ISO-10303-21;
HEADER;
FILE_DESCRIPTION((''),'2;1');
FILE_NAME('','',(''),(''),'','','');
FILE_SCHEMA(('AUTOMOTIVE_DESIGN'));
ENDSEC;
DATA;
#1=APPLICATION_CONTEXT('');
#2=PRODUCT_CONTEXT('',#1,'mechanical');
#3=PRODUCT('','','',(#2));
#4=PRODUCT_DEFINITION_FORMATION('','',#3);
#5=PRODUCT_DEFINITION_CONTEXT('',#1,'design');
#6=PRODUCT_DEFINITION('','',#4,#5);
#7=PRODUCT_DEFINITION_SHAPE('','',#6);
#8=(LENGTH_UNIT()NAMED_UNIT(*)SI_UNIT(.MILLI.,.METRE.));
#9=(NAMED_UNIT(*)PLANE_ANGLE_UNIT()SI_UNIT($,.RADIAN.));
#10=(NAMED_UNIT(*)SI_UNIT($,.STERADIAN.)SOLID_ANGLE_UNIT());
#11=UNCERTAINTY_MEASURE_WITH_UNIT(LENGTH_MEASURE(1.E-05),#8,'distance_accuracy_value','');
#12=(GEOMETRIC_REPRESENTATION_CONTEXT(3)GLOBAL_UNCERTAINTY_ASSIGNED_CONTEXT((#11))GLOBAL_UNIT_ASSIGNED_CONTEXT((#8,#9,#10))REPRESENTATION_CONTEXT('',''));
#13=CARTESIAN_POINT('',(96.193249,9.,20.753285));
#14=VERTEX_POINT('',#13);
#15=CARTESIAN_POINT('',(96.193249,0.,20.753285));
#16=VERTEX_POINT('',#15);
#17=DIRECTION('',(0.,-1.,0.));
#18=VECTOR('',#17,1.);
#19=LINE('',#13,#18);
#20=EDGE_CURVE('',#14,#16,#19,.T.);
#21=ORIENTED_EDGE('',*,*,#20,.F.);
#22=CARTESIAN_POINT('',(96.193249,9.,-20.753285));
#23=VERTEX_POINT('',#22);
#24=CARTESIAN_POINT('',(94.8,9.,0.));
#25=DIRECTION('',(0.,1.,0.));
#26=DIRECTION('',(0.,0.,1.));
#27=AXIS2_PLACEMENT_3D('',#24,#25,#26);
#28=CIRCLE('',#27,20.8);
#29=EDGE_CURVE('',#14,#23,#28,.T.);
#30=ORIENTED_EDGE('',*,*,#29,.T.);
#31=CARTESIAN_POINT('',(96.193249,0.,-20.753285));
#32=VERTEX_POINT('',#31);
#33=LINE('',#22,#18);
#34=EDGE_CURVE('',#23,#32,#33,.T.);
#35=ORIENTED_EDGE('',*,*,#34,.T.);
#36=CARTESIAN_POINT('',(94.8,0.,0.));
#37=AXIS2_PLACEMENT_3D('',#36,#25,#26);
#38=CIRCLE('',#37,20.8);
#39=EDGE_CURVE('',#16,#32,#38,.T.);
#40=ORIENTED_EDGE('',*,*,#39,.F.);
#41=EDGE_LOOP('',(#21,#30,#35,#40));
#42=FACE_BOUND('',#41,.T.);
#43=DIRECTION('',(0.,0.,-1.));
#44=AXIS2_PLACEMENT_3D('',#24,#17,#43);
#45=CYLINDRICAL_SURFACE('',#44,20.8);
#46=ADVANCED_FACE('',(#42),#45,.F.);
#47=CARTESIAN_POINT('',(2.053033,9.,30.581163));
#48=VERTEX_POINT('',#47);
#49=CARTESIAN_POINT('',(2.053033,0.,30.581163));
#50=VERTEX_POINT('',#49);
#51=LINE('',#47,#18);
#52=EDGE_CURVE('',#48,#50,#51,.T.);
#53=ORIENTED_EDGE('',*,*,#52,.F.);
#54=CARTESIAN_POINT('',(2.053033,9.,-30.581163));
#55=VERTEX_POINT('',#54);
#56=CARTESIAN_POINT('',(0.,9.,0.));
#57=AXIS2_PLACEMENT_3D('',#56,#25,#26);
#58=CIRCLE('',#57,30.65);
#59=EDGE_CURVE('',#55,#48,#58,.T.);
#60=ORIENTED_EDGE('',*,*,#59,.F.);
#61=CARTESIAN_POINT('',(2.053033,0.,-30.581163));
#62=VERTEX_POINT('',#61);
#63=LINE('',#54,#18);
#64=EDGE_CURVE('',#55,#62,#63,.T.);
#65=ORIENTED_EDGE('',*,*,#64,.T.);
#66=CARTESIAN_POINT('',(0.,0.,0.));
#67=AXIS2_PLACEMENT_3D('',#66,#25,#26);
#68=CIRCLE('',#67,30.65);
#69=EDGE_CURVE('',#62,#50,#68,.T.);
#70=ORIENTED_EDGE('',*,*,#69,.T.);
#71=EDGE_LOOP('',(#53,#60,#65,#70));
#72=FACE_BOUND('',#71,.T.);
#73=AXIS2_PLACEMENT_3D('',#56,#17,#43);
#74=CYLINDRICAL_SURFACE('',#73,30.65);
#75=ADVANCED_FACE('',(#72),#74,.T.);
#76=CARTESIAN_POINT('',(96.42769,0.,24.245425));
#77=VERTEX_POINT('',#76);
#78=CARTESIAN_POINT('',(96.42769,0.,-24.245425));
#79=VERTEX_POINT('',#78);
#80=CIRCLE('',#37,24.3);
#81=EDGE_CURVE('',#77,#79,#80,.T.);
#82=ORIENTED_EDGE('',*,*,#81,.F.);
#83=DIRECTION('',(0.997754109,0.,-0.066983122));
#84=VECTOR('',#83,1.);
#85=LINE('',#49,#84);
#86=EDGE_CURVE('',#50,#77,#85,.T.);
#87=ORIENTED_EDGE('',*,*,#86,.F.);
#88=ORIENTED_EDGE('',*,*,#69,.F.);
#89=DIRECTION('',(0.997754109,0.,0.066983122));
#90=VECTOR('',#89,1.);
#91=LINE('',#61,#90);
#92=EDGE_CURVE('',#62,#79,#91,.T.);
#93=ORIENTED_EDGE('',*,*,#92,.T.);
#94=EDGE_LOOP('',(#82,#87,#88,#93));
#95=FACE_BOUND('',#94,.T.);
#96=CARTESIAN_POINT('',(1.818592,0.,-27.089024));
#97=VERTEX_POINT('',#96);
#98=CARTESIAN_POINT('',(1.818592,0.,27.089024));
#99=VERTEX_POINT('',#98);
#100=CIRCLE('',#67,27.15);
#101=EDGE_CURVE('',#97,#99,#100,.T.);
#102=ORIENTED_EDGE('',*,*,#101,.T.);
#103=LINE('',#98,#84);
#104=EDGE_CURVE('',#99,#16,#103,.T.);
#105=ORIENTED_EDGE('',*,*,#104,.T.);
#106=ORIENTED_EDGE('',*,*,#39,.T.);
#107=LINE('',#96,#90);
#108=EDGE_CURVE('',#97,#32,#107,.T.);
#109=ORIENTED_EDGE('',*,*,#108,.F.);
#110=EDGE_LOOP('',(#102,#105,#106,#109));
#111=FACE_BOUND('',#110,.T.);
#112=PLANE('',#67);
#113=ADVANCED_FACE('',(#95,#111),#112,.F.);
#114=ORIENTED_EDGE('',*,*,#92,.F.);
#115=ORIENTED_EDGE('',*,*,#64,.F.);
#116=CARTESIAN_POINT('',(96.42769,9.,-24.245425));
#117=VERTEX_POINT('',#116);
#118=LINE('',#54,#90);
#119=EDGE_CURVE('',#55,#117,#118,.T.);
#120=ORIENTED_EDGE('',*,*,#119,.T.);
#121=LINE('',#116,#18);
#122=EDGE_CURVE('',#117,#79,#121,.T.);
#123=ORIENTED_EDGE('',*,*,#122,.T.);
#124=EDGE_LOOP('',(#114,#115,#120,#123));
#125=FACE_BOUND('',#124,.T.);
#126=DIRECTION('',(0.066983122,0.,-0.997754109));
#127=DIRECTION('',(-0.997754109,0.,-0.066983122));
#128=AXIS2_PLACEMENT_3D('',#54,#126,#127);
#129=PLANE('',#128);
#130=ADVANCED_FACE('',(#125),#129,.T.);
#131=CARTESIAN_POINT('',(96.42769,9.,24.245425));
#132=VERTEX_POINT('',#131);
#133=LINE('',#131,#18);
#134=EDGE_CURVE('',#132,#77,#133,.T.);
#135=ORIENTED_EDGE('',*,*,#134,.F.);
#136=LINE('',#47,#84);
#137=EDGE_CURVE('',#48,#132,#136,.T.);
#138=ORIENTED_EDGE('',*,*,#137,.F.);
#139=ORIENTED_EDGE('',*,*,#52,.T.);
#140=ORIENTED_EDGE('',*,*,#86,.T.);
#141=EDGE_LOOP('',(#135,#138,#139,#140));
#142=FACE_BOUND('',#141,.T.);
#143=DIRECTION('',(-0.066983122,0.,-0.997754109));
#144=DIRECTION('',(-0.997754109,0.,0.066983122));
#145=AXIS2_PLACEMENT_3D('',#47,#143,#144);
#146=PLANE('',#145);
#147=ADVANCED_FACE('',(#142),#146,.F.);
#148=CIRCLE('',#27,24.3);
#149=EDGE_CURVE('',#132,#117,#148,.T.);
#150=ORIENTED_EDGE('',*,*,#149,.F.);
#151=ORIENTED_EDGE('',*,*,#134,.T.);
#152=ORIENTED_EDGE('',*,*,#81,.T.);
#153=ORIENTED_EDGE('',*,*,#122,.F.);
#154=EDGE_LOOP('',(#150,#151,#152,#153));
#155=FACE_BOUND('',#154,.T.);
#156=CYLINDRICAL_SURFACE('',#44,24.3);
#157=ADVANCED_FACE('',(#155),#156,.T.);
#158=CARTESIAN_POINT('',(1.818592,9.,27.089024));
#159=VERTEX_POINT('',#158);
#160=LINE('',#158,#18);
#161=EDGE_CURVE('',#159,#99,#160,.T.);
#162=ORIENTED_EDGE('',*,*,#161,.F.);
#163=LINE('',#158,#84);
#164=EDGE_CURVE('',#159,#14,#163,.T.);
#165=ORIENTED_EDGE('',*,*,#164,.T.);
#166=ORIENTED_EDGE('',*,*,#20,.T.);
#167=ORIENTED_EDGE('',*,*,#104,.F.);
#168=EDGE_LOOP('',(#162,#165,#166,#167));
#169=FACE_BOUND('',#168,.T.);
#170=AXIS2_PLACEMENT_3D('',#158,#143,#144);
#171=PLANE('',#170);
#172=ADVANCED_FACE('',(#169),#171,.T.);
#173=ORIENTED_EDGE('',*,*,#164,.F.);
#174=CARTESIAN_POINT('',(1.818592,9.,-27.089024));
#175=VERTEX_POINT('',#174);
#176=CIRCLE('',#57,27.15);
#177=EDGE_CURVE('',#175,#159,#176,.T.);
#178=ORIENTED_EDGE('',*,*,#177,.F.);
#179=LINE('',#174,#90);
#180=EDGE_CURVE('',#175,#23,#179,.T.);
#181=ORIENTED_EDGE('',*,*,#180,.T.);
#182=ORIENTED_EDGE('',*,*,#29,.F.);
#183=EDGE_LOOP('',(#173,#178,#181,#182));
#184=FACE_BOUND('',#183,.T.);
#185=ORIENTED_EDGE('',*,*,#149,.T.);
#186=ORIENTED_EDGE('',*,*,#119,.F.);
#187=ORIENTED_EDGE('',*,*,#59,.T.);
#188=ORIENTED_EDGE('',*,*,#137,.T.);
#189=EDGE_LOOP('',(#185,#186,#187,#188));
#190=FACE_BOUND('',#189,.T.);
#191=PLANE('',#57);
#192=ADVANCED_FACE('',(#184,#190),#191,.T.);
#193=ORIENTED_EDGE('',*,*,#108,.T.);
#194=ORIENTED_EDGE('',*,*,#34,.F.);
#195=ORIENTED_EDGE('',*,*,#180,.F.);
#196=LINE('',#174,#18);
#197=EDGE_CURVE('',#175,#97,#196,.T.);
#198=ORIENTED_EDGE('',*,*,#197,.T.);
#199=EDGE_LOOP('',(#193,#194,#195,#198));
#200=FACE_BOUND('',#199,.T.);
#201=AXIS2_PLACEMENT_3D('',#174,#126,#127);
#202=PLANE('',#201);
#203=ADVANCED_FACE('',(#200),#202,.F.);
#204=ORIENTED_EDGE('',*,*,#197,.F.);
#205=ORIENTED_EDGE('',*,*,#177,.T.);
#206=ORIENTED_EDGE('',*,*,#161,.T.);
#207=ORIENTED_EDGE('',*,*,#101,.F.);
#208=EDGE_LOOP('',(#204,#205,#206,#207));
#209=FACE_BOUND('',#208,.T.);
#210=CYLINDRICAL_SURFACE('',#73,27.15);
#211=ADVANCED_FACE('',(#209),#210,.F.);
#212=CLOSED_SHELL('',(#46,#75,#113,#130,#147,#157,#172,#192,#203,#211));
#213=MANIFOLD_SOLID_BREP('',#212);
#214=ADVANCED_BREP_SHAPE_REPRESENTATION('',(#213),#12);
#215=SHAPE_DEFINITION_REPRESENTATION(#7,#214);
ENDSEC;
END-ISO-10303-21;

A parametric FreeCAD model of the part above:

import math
import FreeCAD as App
import Part
import Sketcher
from FreeCAD import Vector
Q = App.Units.Quantity

doc = App.newDocument("Part")
body = doc.addObject("PartDesign::Body", "Body")

# Sketch on XZ plane
sketch1 = body.newObject("Sketcher::SketchObject", "Sketch")
sketch1.AttachmentSupport = (doc.getObject("XZ_Plane"), [""])
sketch1.MapMode = "FlatFace"
sketch1.addGeometry([
    Part.LineSegment(Vector(96, -24, 0), Vector(2, -31, 0)),  # 0
    Part.ArcOfCircle(Part.Circle(Vector(0, 0, 0), Vector(0, 0, 1), 31), math.radians(86), math.radians(274)),  # 1
    Part.LineSegment(Vector(2, 31, 0), Vector(96, 24, 0)),  # 2
    Part.ArcOfCircle(Part.Circle(Vector(95, 0, 0), Vector(0, 0, 1), 24), math.radians(-86), math.radians(86)),  # 3
    Part.LineSegment(Vector(2, -27, 0), Vector(96, -21, 0)),  # 4
    Part.ArcOfCircle(Part.Circle(Vector(95, 0, 0), Vector(0, 0, 1), 21), math.radians(-86), math.radians(86)),  # 5
    Part.LineSegment(Vector(96, 21, 0), Vector(2, 27, 0)),  # 6
    Part.ArcOfCircle(Part.Circle(Vector(0, 0, 0), Vector(0, 0, 1), 27), math.radians(86), math.radians(274)),  # 7
], False)
sketch1.addConstraint([
    Sketcher.Constraint("Tangent", 0, 2, 1, 2),
    Sketcher.Constraint("Tangent", 1, 1, 2, 1),
    Sketcher.Constraint("Tangent", 2, 2, 3, 2),
    Sketcher.Constraint("Tangent", 3, 1, 0, 1),
    Sketcher.Constraint("Tangent", 4, 2, 5, 1),
    Sketcher.Constraint("Tangent", 5, 2, 6, 1),
    Sketcher.Constraint("Tangent", 6, 2, 7, 1),
    Sketcher.Constraint("Tangent", 7, 2, 4, 1),
    Sketcher.Constraint("Coincident", 1, 3, -1, 1),
    Sketcher.Constraint("Coincident", 7, 3, -1, 1),
    Sketcher.Constraint("Coincident", 5, 3, 3, 3),
    Sketcher.Constraint("PointOnObject", 3, 3, -1),
    Sketcher.Constraint("Parallel", 0, 4),
    Sketcher.Constraint("Radius", 3, Q("24.3 mm")),
    Sketcher.Constraint("Radius", 5, Q("20.8 mm")),
    Sketcher.Constraint("Radius", 1, Q("30.65 mm")),
    Sketcher.Constraint("DistanceX", -1, 1, 3, 3, Q("94.8 mm")),
])
pad1 = body.newObject("PartDesign::Pad", "Pad")
pad1.Profile = sketch1
pad1.Length = 9
pad1.Reversed = True

doc.recompute()
